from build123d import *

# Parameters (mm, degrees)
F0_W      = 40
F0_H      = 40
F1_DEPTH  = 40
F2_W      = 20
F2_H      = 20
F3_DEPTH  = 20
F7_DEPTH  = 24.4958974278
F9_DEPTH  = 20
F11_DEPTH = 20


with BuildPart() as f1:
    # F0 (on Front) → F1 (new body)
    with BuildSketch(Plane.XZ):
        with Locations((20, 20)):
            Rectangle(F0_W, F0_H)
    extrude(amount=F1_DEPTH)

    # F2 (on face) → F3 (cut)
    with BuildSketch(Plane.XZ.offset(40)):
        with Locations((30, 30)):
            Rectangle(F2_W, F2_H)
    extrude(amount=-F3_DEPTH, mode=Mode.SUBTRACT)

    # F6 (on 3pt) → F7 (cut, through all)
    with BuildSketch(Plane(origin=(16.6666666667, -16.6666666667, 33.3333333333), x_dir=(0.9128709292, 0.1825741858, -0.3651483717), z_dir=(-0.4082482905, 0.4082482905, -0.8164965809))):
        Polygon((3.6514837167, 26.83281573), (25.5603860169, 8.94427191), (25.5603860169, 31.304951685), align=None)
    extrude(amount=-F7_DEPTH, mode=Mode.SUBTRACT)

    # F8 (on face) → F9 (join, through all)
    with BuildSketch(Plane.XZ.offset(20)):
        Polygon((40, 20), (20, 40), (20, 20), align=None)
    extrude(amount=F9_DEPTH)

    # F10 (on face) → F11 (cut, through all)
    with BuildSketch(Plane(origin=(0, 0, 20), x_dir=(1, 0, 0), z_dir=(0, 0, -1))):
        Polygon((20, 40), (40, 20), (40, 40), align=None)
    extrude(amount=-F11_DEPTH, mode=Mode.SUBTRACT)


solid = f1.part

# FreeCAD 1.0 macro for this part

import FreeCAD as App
import Part
import Sketcher
from FreeCAD import Vector
Q = App.Units.Quantity

doc = App.newDocument("Part")
body = doc.addObject("PartDesign::Body", "Body")

# Sketch on XZ plane
sketch1 = body.newObject("Sketcher::SketchObject", "Sketch")
sketch1.AttachmentSupport = (doc.getObject("XZ_Plane"), [""])
sketch1.MapMode = "FlatFace"
sketch1.addGeometry([
    Part.LineSegment(Vector(0, 40, 0), Vector(0, 0, 0)),
    Part.LineSegment(Vector(0, 0, 0), Vector(40, 0, 0)),
    Part.LineSegment(Vector(40, 0, 0), Vector(40, 40, 0)),
    Part.LineSegment(Vector(40, 40, 0), Vector(0, 40, 0)),
], False)
sketch1.addConstraint([
    Sketcher.Constraint("Coincident", 0, 2, 1, 1),
    Sketcher.Constraint("Coincident", 1, 2, 2, 1),
    Sketcher.Constraint("Coincident", 2, 2, 3, 1),
    Sketcher.Constraint("Coincident", 3, 2, 0, 1),
    Sketcher.Constraint("Vertical", 0),
    Sketcher.Constraint("Horizontal", 1),
    Sketcher.Constraint("Vertical", 2),
    Sketcher.Constraint("Horizontal", 3),
    Sketcher.Constraint("Coincident", 0, 2, -1, 1),
    Sketcher.Constraint("Equal", 3, 0),
    Sketcher.Constraint("DistanceX", 1, 1, 1, 2, Q("40 mm")),
])
pad1 = body.newObject("PartDesign::Pad", "Pad")
pad1.Profile = sketch1
pad1.Length = 40

# Sketch on XZ plane
sketch2 = body.newObject("Sketcher::SketchObject", "Sketch001")
sketch2.AttachmentSupport = (doc.getObject("XZ_Plane"), [""])
sketch2.MapMode = "FlatFace"
sketch2.AttachmentOffset = App.Placement(Vector(0, 0, 40), App.Rotation())
sketch2.addGeometry([
    Part.LineSegment(Vector(20, 40, 0), Vector(20, 20, 0)),
    Part.LineSegment(Vector(20, 20, 0), Vector(40, 20, 0)),
    Part.LineSegment(Vector(40, 20, 0), Vector(40, 40, 0)),
    Part.LineSegment(Vector(40, 40, 0), Vector(20, 40, 0)),
], False)
sketch2.addConstraint([
    Sketcher.Constraint("Coincident", 0, 2, 1, 1),
    Sketcher.Constraint("Coincident", 1, 2, 2, 1),
    Sketcher.Constraint("Coincident", 2, 2, 3, 1),
    Sketcher.Constraint("Coincident", 3, 2, 0, 1),
    Sketcher.Constraint("Vertical", 0),
    Sketcher.Constraint("Horizontal", 1),
    Sketcher.Constraint("Vertical", 2),
    Sketcher.Constraint("Horizontal", 3),
    Sketcher.Constraint("Equal", 3, 0),
    Sketcher.Constraint("DistanceX", 1, 1, 1, 2, Q("20 mm")),
    Sketcher.Constraint("DistanceX", -1, 1, 0, 2, Q("20 mm")),
    Sketcher.Constraint("DistanceY", -1, 1, 0, 2, Q("20 mm")),
])
pocket1 = body.newObject("PartDesign::Pocket", "Pocket")
pocket1.Profile = sketch2
pocket1.Length = 20

# Sketch on an angled plane
sketch3 = body.newObject("Sketcher::SketchObject", "Sketch002")
sketch3.Placement = App.Placement(Vector(16.666667, -16.666667, 33.333333), App.Rotation(Vector(0.912870929, 0.182574186, -0.365148372), Vector(0, -0.894427191, -0.447213595), Vector(-0.40824829, 0.40824829, -0.816496581), "ZXY"))
sketch3.addGeometry([
    Part.LineSegment(Vector(4, 27, 0), Vector(26, 9, 0)),
    Part.LineSegment(Vector(26, 9, 0), Vector(26, 31, 0)),
    Part.LineSegment(Vector(26, 31, 0), Vector(4, 27, 0)),
], False)
sketch3.addConstraint([
    Sketcher.Constraint("Coincident", 0, 2, 1, 1),
    Sketcher.Constraint("Coincident", 1, 2, 2, 1),
    Sketcher.Constraint("Coincident", 2, 2, 0, 1),
    Sketcher.Constraint("Vertical", 1),
    Sketcher.Constraint("DistanceY", 1, 1, 1, 2, Q("22.36068 mm")),
    Sketcher.Constraint("Distance", 0, Q("28.284271 mm")),
    Sketcher.Constraint("Distance", 2, Q("22.36068 mm")),
    Sketcher.Constraint("DistanceY", -1, 1, 0, 2, Q("8.944272 mm")),
    Sketcher.Constraint("DistanceX", -1, 1, 0, 2, Q("25.560386 mm")),
])
pocket2 = body.newObject("PartDesign::Pocket", "Pocket001")
pocket2.Profile = sketch3
pocket2.Type = "ThroughAll"

# Sketch on XZ plane
sketch4 = body.newObject("Sketcher::SketchObject", "Sketch003")
sketch4.AttachmentSupport = (doc.getObject("XZ_Plane"), [""])
sketch4.MapMode = "FlatFace"
sketch4.AttachmentOffset = App.Placement(Vector(0, 0, 20), App.Rotation())
sketch4.addGeometry([
    Part.LineSegment(Vector(40, 20, 0), Vector(20, 40, 0)),
    Part.LineSegment(Vector(20, 40, 0), Vector(20, 20, 0)),
    Part.LineSegment(Vector(20, 20, 0), Vector(40, 20, 0)),
], False)
sketch4.addConstraint([
    Sketcher.Constraint("Coincident", 0, 2, 1, 1),
    Sketcher.Constraint("Coincident", 1, 2, 2, 1),
    Sketcher.Constraint("Coincident", 2, 2, 0, 1),
    Sketcher.Constraint("Vertical", 1),
    Sketcher.Constraint("Horizontal", 2),
    Sketcher.Constraint("Equal", 2, 1),
    Sketcher.Constraint("DistanceX", 2, 1, 2, 2, Q("20 mm")),
    Sketcher.Constraint("DistanceX", -1, 1, 0, 2, Q("20 mm")),
    Sketcher.Constraint("DistanceY", -1, 1, 0, 2, Q("40 mm")),
])
pad2 = body.newObject("PartDesign::Pad", "Pad001")
pad2.Profile = sketch4
pad2.Length = 20

# Sketch on XY plane
sketch5 = body.newObject("Sketcher::SketchObject", "Sketch004")
sketch5.AttachmentSupport = (doc.getObject("XY_Plane"), [""])
sketch5.MapMode = "FlatFace"
sketch5.AttachmentOffset = App.Placement(Vector(0, 0, 20), App.Rotation())
sketch5.addGeometry([
    Part.LineSegment(Vector(20, -40, 0), Vector(40, -20, 0)),
    Part.LineSegment(Vector(40, -20, 0), Vector(40, -40, 0)),
    Part.LineSegment(Vector(40, -40, 0), Vector(20, -40, 0)),
], False)
sketch5.addConstraint([
    Sketcher.Constraint("Coincident", 0, 2, 1, 1),
    Sketcher.Constraint("Coincident", 1, 2, 2, 1),
    Sketcher.Constraint("Coincident", 2, 2, 0, 1),
    Sketcher.Constraint("Vertical", 1),
    Sketcher.Constraint("Horizontal", 2),
    Sketcher.Constraint("Equal", 2, 1),
    Sketcher.Constraint("DistanceX", 2, 2, 2, 1, Q("20 mm")),
    Sketcher.Constraint("DistanceX", -1, 1, 0, 2, Q("40 mm")),
    Sketcher.Constraint("DistanceY", 0, 2, -1, 1, Q("20 mm")),
])
pocket3 = body.newObject("PartDesign::Pocket", "Pocket002")
pocket3.Profile = sketch5
pocket3.Type = "ThroughAll"
pocket3.Reversed = True

doc.recompute()
